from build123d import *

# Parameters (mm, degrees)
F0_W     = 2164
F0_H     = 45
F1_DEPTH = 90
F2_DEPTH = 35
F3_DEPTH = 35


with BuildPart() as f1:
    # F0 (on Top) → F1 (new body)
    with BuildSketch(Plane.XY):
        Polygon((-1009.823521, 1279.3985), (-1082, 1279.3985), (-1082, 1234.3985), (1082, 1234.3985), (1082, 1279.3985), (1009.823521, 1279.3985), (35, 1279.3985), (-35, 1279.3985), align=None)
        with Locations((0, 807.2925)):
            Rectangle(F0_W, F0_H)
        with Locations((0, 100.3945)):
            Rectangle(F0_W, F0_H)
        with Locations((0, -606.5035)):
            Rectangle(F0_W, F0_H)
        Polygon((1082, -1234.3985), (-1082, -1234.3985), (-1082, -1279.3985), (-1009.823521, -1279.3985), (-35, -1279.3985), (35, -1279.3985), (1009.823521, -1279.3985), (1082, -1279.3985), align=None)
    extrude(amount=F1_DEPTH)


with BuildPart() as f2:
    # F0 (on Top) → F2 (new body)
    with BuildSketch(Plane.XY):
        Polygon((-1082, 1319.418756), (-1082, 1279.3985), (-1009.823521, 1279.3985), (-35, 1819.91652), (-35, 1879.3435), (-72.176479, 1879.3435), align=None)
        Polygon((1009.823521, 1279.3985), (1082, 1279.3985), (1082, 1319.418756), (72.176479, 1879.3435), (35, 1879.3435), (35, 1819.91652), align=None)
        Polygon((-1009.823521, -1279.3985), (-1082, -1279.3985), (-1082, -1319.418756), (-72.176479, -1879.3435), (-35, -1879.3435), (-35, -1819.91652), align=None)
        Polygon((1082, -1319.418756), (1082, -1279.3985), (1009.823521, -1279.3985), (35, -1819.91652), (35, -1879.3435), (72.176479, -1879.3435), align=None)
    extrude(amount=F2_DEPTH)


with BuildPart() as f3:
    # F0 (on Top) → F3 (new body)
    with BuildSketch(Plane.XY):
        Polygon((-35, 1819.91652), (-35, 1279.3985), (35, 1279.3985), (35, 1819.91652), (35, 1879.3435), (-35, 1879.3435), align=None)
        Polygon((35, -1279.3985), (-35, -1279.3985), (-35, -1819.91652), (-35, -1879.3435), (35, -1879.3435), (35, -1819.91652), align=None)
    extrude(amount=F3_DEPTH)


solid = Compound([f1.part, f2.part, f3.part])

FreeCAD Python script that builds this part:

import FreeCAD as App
import Part
import Sketcher
from FreeCAD import Vector
Q = App.Units.Quantity

doc = App.newDocument("Part")
body = doc.addObject("PartDesign::Body", "Body")
body.AllowCompound = True

# Sketch on XY plane
sketch1 = doc.addObject("Sketcher::SketchObject", "Sketch")
body.addObject(sketch1)
sketch1.AttachmentSupport = (doc.XY_Plane, [""])
sketch1.MapMode = "FlatFace"
sketch1.addGeometry([
    Part.LineSegment(Vector(-1082, 1279, 0), Vector(-1082, 1234, 0)),  # 0
    Part.LineSegment(Vector(-1082, 1234, 0), Vector(1082, 1234, 0)),  # 1
    Part.LineSegment(Vector(1082, 1234, 0), Vector(1082, 1279, 0)),  # 2
    Part.LineSegment(Vector(1082, 1279, 0), Vector(-1082, 1279, 0)),  # 3
    Part.LineSegment(Vector(-1082, 830, 0), Vector(-1082, 785, 0)),  # 4
    Part.LineSegment(Vector(-1082, 785, 0), Vector(1082, 785, 0)),  # 5
    Part.LineSegment(Vector(1082, 785, 0), Vector(1082, 830, 0)),  # 6
    Part.LineSegment(Vector(1082, 830, 0), Vector(-1082, 830, 0)),  # 7
    Part.LineSegment(Vector(-1082, 123, 0), Vector(-1082, 78, 0)),  # 8
    Part.LineSegment(Vector(-1082, 78, 0), Vector(1082, 78, 0)),  # 9
    Part.LineSegment(Vector(1082, 78, 0), Vector(1082, 123, 0)),  # 10
    Part.LineSegment(Vector(1082, 123, 0), Vector(-1082, 123, 0)),  # 11
    Part.LineSegment(Vector(-1082, -584, 0), Vector(-1082, -629, 0)),  # 12
    Part.LineSegment(Vector(-1082, -629, 0), Vector(1082, -629, 0)),  # 13
    Part.LineSegment(Vector(1082, -629, 0), Vector(1082, -584, 0)),  # 14
    Part.LineSegment(Vector(1082, -584, 0), Vector(-1082, -584, 0)),  # 15
    Part.LineSegment(Vector(1082, -1234, 0), Vector(-1082, -1234, 0)),  # 16
    Part.LineSegment(Vector(-1082, -1234, 0), Vector(-1082, -1279, 0)),  # 17
    Part.LineSegment(Vector(-1082, -1279, 0), Vector(1082, -1279, 0)),  # 18
    Part.LineSegment(Vector(1082, -1279, 0), Vector(1082, -1234, 0)),  # 19
], False)
sketch1.addConstraint([
    Sketcher.Constraint("Coincident", 0, 2, 1, 1),
    Sketcher.Constraint("Coincident", 1, 2, 2, 1),
    Sketcher.Constraint("Coincident", 2, 2, 3, 1),
    Sketcher.Constraint("Coincident", 3, 2, 0, 1),
    Sketcher.Constraint("Coincident", 4, 2, 5, 1),
    Sketcher.Constraint("Coincident", 5, 2, 6, 1),
    Sketcher.Constraint("Coincident", 6, 2, 7, 1),
    Sketcher.Constraint("Coincident", 7, 2, 4, 1),
    Sketcher.Constraint("Coincident", 8, 2, 9, 1),
    Sketcher.Constraint("Coincident", 9, 2, 10, 1),
    Sketcher.Constraint("Coincident", 10, 2, 11, 1),
    Sketcher.Constraint("Coincident", 11, 2, 8, 1),
    Sketcher.Constraint("Coincident", 12, 2, 13, 1),
    Sketcher.Constraint("Coincident", 13, 2, 14, 1),
    Sketcher.Constraint("Coincident", 14, 2, 15, 1),
    Sketcher.Constraint("Coincident", 15, 2, 12, 1),
    Sketcher.Constraint("Coincident", 16, 2, 17, 1),
    Sketcher.Constraint("Coincident", 17, 2, 18, 1),
    Sketcher.Constraint("Coincident", 18, 2, 19, 1),
    Sketcher.Constraint("Coincident", 19, 2, 16, 1),
    Sketcher.Constraint("Vertical", 0),
    Sketcher.Constraint("Horizontal", 1),
    Sketcher.Constraint("Vertical", 2),
    Sketcher.Constraint("Horizontal", 3),
    Sketcher.Constraint("Vertical", 4),
    Sketcher.Constraint("Horizontal", 5),
    Sketcher.Constraint("Vertical", 6),
    Sketcher.Constraint("Horizontal", 7),
    Sketcher.Constraint("Vertical", 8),
    Sketcher.Constraint("Horizontal", 9),
    Sketcher.Constraint("Vertical", 10),
    Sketcher.Constraint("Horizontal", 11),
    Sketcher.Constraint("Vertical", 12),
    Sketcher.Constraint("Horizontal", 13),
    Sketcher.Constraint("Vertical", 14),
    Sketcher.Constraint("Horizontal", 15),
    Sketcher.Constraint("Horizontal", 16),
    Sketcher.Constraint("Vertical", 17),
    Sketcher.Constraint("Horizontal", 18),
    Sketcher.Constraint("Vertical", 19),
    Sketcher.Constraint("Symmetric", 1, 2, 16, 2, -1, 1),
    Sketcher.Constraint("Symmetric", 3, 2, 18, 2, -1, 1),
    Sketcher.Constraint("Vertical", 3, 2, 4, 2),
    Sketcher.Constraint("Vertical", 2, 2, 5, 2),
    Sketcher.Constraint("Vertical", 7, 2, 8, 2),
    Sketcher.Constraint("Vertical", 6, 2, 9, 2),
    Sketcher.Constraint("Vertical", 11, 2, 12, 2),
    Sketcher.Constraint("Vertical", 10, 2, 13, 2),
    Sketcher.Constraint("Vertical", 15, 2, 16, 2),
    Sketcher.Constraint("Equal", 2, 4),
    Sketcher.Constraint("Equal", 6, 8),
    Sketcher.Constraint("Equal", 10, 12),
    Sketcher.Constraint("DistanceX", 1, 1, 1, 2, Q("2164 mm")),
    Sketcher.Constraint("DistanceY", 0, 2, 0, 1, Q("45 mm")),
    Sketcher.Constraint("DistanceY", 4, 2, 0, 2, Q("449.606 mm")),
    Sketcher.Constraint("DistanceY", 8, 2, 4, 2, Q("706.898 mm")),
    Sketcher.Constraint("DistanceY", 12, 2, 8, 2, Q("706.898 mm")),
    Sketcher.Constraint("DistanceY", 16, 2, 12, 2, Q("605.395 mm")),
])
pad1 = doc.addObject("PartDesign::Pad", "Pad")
body.addObject(pad1)
pad1.Profile = sketch1
pad1.Length = 90
body2 = doc.addObject("PartDesign::Body", "Body001")
body2.AllowCompound = True

# Sketch on XY plane
sketch2 = doc.addObject("Sketcher::SketchObject", "Sketch001")
body2.addObject(sketch2)
sketch2.AttachmentSupport = (doc.getObject("XY_Plane001"), [""])
sketch2.MapMode = "FlatFace"
sketch2.addGeometry([
    Part.LineSegment(Vector(-1082, 1319, 0), Vector(-1082, 1279, 0)),  # 0
    Part.LineSegment(Vector(-1082, 1279, 0), Vector(-1010, 1279, 0)),  # 1
    Part.LineSegment(Vector(-1010, 1279, 0), Vector(-35, 1820, 0)),  # 2
    Part.LineSegment(Vector(-35, 1820, 0), Vector(-35, 1879, 0)),  # 3
    Part.LineSegment(Vector(-35, 1879, 0), Vector(-72, 1879, 0)),  # 4
    Part.LineSegment(Vector(-72, 1879, 0), Vector(-1082, 1319, 0)),  # 5
    Part.LineSegment(Vector(1010, 1279, 0), Vector(1082, 1279, 0)),  # 6
    Part.LineSegment(Vector(1082, 1279, 0), Vector(1082, 1319, 0)),  # 7
    Part.LineSegment(Vector(1082, 1319, 0), Vector(72, 1879, 0)),  # 8
    Part.LineSegment(Vector(72, 1879, 0), Vector(35, 1879, 0)),  # 9
    Part.LineSegment(Vector(35, 1879, 0), Vector(35, 1820, 0)),  # 10
    Part.LineSegment(Vector(35, 1820, 0), Vector(1010, 1279, 0)),  # 11
    Part.LineSegment(Vector(-1010, -1279, 0), Vector(-1082, -1279, 0)),  # 12
    Part.LineSegment(Vector(-1082, -1279, 0), Vector(-1082, -1319, 0)),  # 13
    Part.LineSegment(Vector(-1082, -1319, 0), Vector(-72, -1879, 0)),  # 14
    Part.LineSegment(Vector(-72, -1879, 0), Vector(-35, -1879, 0)),  # 15
    Part.LineSegment(Vector(-35, -1879, 0), Vector(-35, -1820, 0)),  # 16
    Part.LineSegment(Vector(-35, -1820, 0), Vector(-1010, -1279, 0)),  # 17
    Part.LineSegment(Vector(1082, -1319, 0), Vector(1082, -1279, 0)),  # 18
    Part.LineSegment(Vector(1082, -1279, 0), Vector(1010, -1279, 0)),  # 19
    Part.LineSegment(Vector(1010, -1279, 0), Vector(35, -1820, 0)),  # 20
    Part.LineSegment(Vector(35, -1820, 0), Vector(35, -1879, 0)),  # 21
    Part.LineSegment(Vector(35, -1879, 0), Vector(72, -1879, 0)),  # 22
    Part.LineSegment(Vector(72, -1879, 0), Vector(1082, -1319, 0)),  # 23
], False)
sketch2.addConstraint([
    Sketcher.Constraint("Coincident", 0, 2, 1, 1),
    Sketcher.Constraint("Coincident", 1, 2, 2, 1),
    Sketcher.Constraint("Coincident", 2, 2, 3, 1),
    Sketcher.Constraint("Coincident", 3, 2, 4, 1),
    Sketcher.Constraint("Coincident", 4, 2, 5, 1),
    Sketcher.Constraint("Coincident", 5, 2, 0, 1),
    Sketcher.Constraint("Coincident", 6, 2, 7, 1),
    Sketcher.Constraint("Coincident", 7, 2, 8, 1),
    Sketcher.Constraint("Coincident", 8, 2, 9, 1),
    Sketcher.Constraint("Coincident", 9, 2, 10, 1),
    Sketcher.Constraint("Coincident", 10, 2, 11, 1),
    Sketcher.Constraint("Coincident", 11, 2, 6, 1),
    Sketcher.Constraint("Coincident", 12, 2, 13, 1),
    Sketcher.Constraint("Coincident", 13, 2, 14, 1),
    Sketcher.Constraint("Coincident", 14, 2, 15, 1),
    Sketcher.Constraint("Coincident", 15, 2, 16, 1),
    Sketcher.Constraint("Coincident", 16, 2, 17, 1),
    Sketcher.Constraint("Coincident", 17, 2, 12, 1),
    Sketcher.Constraint("Coincident", 18, 2, 19, 1),
    Sketcher.Constraint("Coincident", 19, 2, 20, 1),
    Sketcher.Constraint("Coincident", 20, 2, 21, 1),
    Sketcher.Constraint("Coincident", 21, 2, 22, 1),
    Sketcher.Constraint("Coincident", 22, 2, 23, 1),
    Sketcher.Constraint("Coincident", 23, 2, 18, 1),
    Sketcher.Constraint("Vertical", 0),
    Sketcher.Constraint("Horizontal", 1),
    Sketcher.Constraint("Vertical", 3),
    Sketcher.Constraint("Horizontal", 4),
    Sketcher.Constraint("Horizontal", 6),
    Sketcher.Constraint("Vertical", 7),
    Sketcher.Constraint("Horizontal", 9),
    Sketcher.Constraint("Vertical", 10),
    Sketcher.Constraint("Horizontal", 12),
    Sketcher.Constraint("Vertical", 13),
    Sketcher.Constraint("Horizontal", 15),
    Sketcher.Constraint("Vertical", 16),
    Sketcher.Constraint("Vertical", 18),
    Sketcher.Constraint("Horizontal", 19),
    Sketcher.Constraint("Vertical", 21),
    Sketcher.Constraint("Horizontal", 22),
    Sketcher.Constraint("Symmetric", 6, 2, 12, 2, -1, 1),
    Sketcher.Constraint("Symmetric", 8, 2, 14, 2, -1, 1),
    Sketcher.Constraint("Symmetric", 10, 2, 16, 2, -1, 1),
    Sketcher.Constraint("Symmetric", 0, 2, 18, 2, -1, 1),
    Sketcher.Constraint("Symmetric", 2, 2, 20, 2, -1, 1),
    Sketcher.Constraint("Symmetric", 4, 2, 22, 2, -1, 1),
    Sketcher.Constraint("Symmetric", 0, 2, 6, 2, -2),
    Sketcher.Constraint("Symmetric", 4, 2, 8, 2, -2),
    Sketcher.Constraint("Symmetric", 2, 2, 10, 2, -2),
    Sketcher.Constraint("Parallel", 2, 5),
    Sketcher.Constraint("Parallel", 8, 11),
    Sketcher.Constraint("Parallel", 11, 14),
    Sketcher.Constraint("Parallel", 14, 17),
    Sketcher.Constraint("Parallel", 5, 20),
    Sketcher.Constraint("Parallel", 20, 23),
    Sketcher.Constraint("Horizontal", 5, 2, 7, 2),
    Sketcher.Constraint("DistanceX", 0, 2, -1, 1, Q("1082 mm")),
    Sketcher.Constraint("DistanceX", 2, 2, -1, 1, Q("35 mm")),
    Sketcher.Constraint("DistanceX", 14, 2, 11, 2, Q("1082 mm")),
    Sketcher.Constraint("DistanceY", 1, 2, 3, 2, Q("599.945 mm")),
    Sketcher.Constraint("DistanceY", 12, 2, 0, 2, Q("2558.797 mm")),
    Sketcher.Constraint("DistanceX", 1, 1, 1, 2, Q("72.176479 mm")),
    Sketcher.Constraint("DistanceY", 3, 1, 3, 2, Q("59.42698 mm")),
])
pad2 = doc.addObject("PartDesign::Pad", "Pad001")
body2.addObject(pad2)
pad2.Profile = sketch2
pad2.Length = 35
body3 = doc.addObject("PartDesign::Body", "Body002")
body3.AllowCompound = True

# Sketch on XY plane
sketch3 = doc.addObject("Sketcher::SketchObject", "Sketch002")
body3.addObject(sketch3)
sketch3.AttachmentSupport = (doc.getObject("XY_Plane002"), [""])
sketch3.MapMode = "FlatFace"
sketch3.addGeometry([
    Part.LineSegment(Vector(-35, 1279, 0), Vector(35, 1279, 0)),  # 0
    Part.LineSegment(Vector(35, 1279, 0), Vector(35, 1879, 0)),  # 1
    Part.LineSegment(Vector(35, 1879, 0), Vector(-35, 1879, 0)),  # 2
    Part.LineSegment(Vector(-35, 1879, 0), Vector(-35, 1279, 0)),  # 3
    Part.LineSegment(Vector(35, -1279, 0), Vector(-35, -1279, 0)),  # 4
    Part.LineSegment(Vector(-35, -1279, 0), Vector(-35, -1879, 0)),  # 5
    Part.LineSegment(Vector(-35, -1879, 0), Vector(35, -1879, 0)),  # 6
    Part.LineSegment(Vector(35, -1879, 0), Vector(35, -1279, 0)),  # 7
], False)
sketch3.addConstraint([
    Sketcher.Constraint("Coincident", 0, 2, 1, 1),
    Sketcher.Constraint("Coincident", 1, 2, 2, 1),
    Sketcher.Constraint("Coincident", 2, 2, 3, 1),
    Sketcher.Constraint("Coincident", 3, 2, 0, 1),
    Sketcher.Constraint("Coincident", 4, 2, 5, 1),
    Sketcher.Constraint("Coincident", 5, 2, 6, 1),
    Sketcher.Constraint("Coincident", 6, 2, 7, 1),
    Sketcher.Constraint("Coincident", 7, 2, 4, 1),
    Sketcher.Constraint("Horizontal", 0),
    Sketcher.Constraint("Vertical", 1),
    Sketcher.Constraint("Horizontal", 2),
    Sketcher.Constraint("Vertical", 3),
    Sketcher.Constraint("Horizontal", 4),
    Sketcher.Constraint("Vertical", 5),
    Sketcher.Constraint("Horizontal", 6),
    Sketcher.Constraint("Vertical", 7),
    Sketcher.Constraint("Symmetric", 0, 2, 4, 2, -1, 1),
    Sketcher.Constraint("Symmetric", 2, 2, 6, 2, -1, 1),
    Sketcher.Constraint("Vertical", 3, 2, 4, 2),
    Sketcher.Constraint("DistanceX", 0, 1, 0, 2, Q("70 mm")),
    Sketcher.Constraint("DistanceY", 1, 1, 1, 2, Q("599.945 mm")),
    Sketcher.Constraint("DistanceY", 4, 2, 3, 2, Q("2558.797 mm")),
])
pad3 = doc.addObject("PartDesign::Pad", "Pad002")
body3.addObject(pad3)
pad3.Profile = sketch3
pad3.Length = 35

doc.recompute()
